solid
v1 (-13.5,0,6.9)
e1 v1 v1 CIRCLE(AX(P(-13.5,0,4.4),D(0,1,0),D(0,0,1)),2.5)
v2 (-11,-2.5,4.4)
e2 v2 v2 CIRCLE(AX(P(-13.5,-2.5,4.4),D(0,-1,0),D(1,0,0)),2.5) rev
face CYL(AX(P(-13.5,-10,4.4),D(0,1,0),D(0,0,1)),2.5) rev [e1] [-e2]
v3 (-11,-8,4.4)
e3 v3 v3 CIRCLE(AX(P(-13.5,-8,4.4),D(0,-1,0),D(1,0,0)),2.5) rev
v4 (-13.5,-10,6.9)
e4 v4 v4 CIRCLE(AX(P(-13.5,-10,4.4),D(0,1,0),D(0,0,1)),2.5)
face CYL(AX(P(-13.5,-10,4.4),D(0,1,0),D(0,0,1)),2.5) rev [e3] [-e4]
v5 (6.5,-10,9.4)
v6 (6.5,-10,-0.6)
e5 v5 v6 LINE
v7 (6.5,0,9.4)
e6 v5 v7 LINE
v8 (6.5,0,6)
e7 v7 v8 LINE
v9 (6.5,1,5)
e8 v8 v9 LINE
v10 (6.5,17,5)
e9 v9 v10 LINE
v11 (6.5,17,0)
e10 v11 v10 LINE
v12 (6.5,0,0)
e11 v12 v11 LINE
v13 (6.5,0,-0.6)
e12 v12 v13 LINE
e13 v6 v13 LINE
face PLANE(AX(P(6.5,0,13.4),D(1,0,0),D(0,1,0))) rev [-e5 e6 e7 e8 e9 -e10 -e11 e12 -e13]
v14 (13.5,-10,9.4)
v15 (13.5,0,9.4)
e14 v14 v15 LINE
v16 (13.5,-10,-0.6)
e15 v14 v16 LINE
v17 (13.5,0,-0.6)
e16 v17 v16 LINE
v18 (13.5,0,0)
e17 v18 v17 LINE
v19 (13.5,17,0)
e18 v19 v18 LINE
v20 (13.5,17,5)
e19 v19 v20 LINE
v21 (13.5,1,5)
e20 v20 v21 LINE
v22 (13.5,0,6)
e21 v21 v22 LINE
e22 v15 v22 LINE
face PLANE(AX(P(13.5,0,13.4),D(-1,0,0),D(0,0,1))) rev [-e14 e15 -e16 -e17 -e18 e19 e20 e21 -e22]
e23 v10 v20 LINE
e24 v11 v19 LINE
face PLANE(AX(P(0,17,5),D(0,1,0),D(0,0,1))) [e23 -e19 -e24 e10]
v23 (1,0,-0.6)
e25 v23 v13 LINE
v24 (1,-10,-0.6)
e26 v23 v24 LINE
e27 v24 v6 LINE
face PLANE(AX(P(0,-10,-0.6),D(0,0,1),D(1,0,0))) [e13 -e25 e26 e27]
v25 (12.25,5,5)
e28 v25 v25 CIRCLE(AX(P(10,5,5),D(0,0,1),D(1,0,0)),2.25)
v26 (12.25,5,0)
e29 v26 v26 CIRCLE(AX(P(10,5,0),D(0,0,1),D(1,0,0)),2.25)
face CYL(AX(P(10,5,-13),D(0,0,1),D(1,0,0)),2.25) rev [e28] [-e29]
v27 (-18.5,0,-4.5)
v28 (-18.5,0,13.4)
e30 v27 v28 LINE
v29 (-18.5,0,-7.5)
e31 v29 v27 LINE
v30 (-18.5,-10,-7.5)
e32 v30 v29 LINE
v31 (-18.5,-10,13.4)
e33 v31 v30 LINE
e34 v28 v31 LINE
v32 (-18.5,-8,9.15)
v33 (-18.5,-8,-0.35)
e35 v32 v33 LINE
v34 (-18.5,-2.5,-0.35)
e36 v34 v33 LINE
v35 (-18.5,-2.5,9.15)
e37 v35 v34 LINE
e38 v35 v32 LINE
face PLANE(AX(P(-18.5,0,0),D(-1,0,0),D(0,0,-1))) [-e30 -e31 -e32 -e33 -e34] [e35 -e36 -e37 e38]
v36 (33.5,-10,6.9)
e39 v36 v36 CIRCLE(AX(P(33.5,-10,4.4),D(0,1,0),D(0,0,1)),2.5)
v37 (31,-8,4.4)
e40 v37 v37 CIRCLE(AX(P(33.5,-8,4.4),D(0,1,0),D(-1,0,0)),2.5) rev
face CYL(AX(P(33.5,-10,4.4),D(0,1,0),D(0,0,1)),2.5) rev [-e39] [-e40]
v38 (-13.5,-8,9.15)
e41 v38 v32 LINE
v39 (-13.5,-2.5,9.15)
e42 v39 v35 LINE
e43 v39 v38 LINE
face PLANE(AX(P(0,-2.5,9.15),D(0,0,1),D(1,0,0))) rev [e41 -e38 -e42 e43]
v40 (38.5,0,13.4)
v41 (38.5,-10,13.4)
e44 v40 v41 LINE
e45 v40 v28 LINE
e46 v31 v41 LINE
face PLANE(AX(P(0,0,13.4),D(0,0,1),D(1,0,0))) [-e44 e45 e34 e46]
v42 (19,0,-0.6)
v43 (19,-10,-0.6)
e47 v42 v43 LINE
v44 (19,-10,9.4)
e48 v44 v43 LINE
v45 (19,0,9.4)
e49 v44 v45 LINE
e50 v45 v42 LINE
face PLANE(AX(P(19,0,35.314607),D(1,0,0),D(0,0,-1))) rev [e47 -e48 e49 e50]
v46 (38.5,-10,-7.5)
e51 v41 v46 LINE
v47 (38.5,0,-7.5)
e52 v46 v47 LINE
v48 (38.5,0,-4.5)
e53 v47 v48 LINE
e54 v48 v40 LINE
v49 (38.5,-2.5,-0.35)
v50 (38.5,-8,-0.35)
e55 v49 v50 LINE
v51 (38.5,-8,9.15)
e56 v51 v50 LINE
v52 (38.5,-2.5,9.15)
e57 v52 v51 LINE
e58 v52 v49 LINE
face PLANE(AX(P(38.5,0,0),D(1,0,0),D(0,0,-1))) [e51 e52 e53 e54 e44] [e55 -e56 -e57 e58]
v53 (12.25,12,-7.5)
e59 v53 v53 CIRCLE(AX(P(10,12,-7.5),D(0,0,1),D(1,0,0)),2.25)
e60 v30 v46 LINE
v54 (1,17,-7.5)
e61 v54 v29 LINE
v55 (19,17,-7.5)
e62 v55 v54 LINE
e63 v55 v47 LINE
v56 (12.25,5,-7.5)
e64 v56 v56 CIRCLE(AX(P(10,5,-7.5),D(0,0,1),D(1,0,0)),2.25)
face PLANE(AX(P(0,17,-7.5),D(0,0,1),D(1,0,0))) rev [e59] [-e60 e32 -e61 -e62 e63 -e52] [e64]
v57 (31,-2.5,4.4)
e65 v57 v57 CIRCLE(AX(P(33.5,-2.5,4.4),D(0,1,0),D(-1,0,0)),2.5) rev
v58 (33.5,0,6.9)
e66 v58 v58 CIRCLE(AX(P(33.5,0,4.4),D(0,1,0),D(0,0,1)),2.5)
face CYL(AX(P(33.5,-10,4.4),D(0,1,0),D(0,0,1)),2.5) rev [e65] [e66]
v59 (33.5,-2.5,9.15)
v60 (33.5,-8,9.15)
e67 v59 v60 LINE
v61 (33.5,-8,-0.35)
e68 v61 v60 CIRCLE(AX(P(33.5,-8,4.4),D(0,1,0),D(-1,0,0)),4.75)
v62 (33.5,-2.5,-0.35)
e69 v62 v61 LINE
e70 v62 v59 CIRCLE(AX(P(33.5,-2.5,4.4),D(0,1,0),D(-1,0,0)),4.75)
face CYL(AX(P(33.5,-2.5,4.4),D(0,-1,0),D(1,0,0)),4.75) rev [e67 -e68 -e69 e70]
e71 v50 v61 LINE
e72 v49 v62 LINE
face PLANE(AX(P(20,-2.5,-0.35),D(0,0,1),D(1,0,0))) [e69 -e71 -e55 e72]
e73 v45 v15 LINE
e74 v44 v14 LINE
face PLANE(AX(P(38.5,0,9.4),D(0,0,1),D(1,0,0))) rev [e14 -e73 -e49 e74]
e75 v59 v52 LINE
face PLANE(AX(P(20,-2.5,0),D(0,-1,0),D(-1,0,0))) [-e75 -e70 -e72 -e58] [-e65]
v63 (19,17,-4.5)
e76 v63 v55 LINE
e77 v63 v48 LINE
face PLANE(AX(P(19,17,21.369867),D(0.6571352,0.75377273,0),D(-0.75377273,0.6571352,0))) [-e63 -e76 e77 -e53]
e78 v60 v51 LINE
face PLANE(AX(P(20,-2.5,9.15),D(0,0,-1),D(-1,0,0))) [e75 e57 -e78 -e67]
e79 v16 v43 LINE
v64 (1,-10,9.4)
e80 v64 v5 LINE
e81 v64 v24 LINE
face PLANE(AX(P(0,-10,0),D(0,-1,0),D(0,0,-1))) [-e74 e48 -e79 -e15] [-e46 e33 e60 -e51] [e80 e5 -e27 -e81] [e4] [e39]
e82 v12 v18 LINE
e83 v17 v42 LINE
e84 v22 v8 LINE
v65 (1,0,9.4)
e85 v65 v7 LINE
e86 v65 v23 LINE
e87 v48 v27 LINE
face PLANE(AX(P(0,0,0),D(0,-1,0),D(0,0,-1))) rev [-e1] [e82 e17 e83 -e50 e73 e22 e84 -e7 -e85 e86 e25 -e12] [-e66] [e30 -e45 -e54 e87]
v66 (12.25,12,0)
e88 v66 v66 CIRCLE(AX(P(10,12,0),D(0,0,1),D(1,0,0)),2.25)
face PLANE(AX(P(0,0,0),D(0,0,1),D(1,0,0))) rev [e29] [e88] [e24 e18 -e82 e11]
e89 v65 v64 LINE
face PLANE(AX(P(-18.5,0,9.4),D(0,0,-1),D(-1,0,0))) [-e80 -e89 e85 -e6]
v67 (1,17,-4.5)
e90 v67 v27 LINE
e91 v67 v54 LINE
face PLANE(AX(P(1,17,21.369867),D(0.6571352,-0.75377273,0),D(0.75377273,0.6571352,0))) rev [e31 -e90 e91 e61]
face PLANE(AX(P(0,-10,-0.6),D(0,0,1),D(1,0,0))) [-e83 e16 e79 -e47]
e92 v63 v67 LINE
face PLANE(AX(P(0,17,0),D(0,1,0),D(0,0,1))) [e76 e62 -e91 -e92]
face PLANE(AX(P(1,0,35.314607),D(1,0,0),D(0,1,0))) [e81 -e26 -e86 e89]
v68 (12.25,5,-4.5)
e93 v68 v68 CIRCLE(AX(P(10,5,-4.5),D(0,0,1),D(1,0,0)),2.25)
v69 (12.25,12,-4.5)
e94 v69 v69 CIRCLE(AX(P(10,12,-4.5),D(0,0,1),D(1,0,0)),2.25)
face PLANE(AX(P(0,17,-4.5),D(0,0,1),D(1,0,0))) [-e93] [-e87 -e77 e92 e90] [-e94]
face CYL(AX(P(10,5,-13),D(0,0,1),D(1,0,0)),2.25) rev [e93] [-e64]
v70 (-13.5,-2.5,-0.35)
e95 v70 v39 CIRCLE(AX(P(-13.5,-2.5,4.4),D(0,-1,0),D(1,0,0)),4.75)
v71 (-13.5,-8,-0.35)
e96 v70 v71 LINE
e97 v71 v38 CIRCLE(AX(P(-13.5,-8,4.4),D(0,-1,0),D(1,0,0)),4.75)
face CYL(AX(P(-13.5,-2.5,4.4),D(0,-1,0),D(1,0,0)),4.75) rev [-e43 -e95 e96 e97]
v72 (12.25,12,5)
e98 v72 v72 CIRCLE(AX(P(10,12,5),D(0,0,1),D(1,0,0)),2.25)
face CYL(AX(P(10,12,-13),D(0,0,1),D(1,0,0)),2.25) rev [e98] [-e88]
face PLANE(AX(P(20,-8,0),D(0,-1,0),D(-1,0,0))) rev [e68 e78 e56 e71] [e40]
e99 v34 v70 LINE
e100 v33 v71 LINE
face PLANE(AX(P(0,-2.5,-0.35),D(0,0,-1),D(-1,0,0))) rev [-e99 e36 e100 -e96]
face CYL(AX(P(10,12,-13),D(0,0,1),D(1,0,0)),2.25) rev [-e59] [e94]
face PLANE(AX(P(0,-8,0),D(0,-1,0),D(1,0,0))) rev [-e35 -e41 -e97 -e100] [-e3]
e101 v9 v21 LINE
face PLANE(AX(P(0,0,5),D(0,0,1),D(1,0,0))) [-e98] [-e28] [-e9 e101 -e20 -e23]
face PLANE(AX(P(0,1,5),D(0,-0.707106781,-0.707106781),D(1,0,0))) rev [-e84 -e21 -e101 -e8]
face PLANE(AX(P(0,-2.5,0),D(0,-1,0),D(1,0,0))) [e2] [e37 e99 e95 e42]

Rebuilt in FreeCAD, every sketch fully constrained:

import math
import FreeCAD as App
import Part
import Sketcher

V = App.Vector
Q = App.Units.Quantity


def edges_at(feature, points):
    """Names of the edges that pass closest to the given points."""
    edges = feature.Shape.Edges
    near = lambda p: min(range(len(edges)), key=lambda i: edges[i].distToShape(Part.Vertex(*p))[0])
    return sorted({f"Edge{near(p) + 1}" for p in points})


def add_polygon(sketch, points):
    """Adds a closed chain of lines whose ends are joined by coincident constraints."""
    first, n = sketch.GeometryCount, len(points)
    for a, b in zip(points, points[1:] + points[:1]):
        sketch.addGeometry(Part.LineSegment(App.Vector(*a, 0), App.Vector(*b, 0)), False)
    for i in range(n):
        sketch.addConstraint(Sketcher.Constraint("Coincident", first + i, 2, first + (i + 1) % n, 1))

doc = App.newDocument("Part")
body = doc.addObject("PartDesign::Body", "Body")

# Sketch on XY plane
sketch1 = doc.addObject("Sketcher::SketchObject", "Sketch")
body.addObject(sketch1)
sketch1.AttachmentSupport = (doc.XY_Plane, [""])
sketch1.MapMode = "FlatFace"
add_polygon(sketch1, [(0, 17), (0, 0), (20, 0), (20, 17)])  # lines 0-3
sketch1.addGeometry(Part.Circle(V(10, 5, 0), V(0, 0, 1), 2.1), False)  # 4
sketch1.addGeometry(Part.Circle(V(10, 12, 0), V(0, 0, 1), 2.1), False)  # 5
sketch1.addConstraint([
    Sketcher.Constraint("Vertical", 0),
    Sketcher.Constraint("Horizontal", 1),
    Sketcher.Constraint("Vertical", 2),
    Sketcher.Constraint("Horizontal", 3),
    Sketcher.Constraint("Coincident", 0, 2, -1, 1),
    Sketcher.Constraint("Equal", 4, 5),
    Sketcher.Constraint("Vertical", 4, 3, 5, 3),
    Sketcher.Constraint("Diameter", 4, Q("4.2 mm")),
    Sketcher.Constraint("DistanceX", 1, 1, 1, 2, Q("20 mm")),
    Sketcher.Constraint("DistanceY", 0, 2, 0, 1, Q("17 mm")),
    Sketcher.Constraint("DistanceX", -1, 1, 4, 3, Q("10 mm")),
    Sketcher.Constraint("DistanceY", -1, 1, 4, 3, Q("5 mm")),
    Sketcher.Constraint("DistanceY", -1, 1, 5, 3, Q("12 mm")),
])
pad1 = doc.addObject("PartDesign::Pad", "Pad")
body.addObject(pad1)
pad1.Profile = sketch1
pad1.Length = 5

# Sketch on XY plane
sketch2 = doc.addObject("Sketcher::SketchObject", "Sketch001")
body.addObject(sketch2)
sketch2.AttachmentSupport = (doc.XY_Plane, [""])
sketch2.MapMode = "FlatFace"
sketch2.AttachmentOffset = App.Placement(V(0, 0, 5), App.Rotation())
add_polygon(sketch2, [(13.5, 17), (13.5, 0), (20, 0), (20, 17)])  # lines 0-3
add_polygon(sketch2, [(0, 17), (0, 0), (6.5, 0), (6.5, 17)])  # lines 4-7
sketch2.addConstraint([
    Sketcher.Constraint("Vertical", 0),
    Sketcher.Constraint("Horizontal", 1),
    Sketcher.Constraint("Vertical", 2),
    Sketcher.Constraint("Horizontal", 3),
    Sketcher.Constraint("Vertical", 4),
    Sketcher.Constraint("Horizontal", 5),
    Sketcher.Constraint("Vertical", 6),
    Sketcher.Constraint("Horizontal", 7),
    Sketcher.Constraint("Coincident", 4, 2, -1, 1),
    Sketcher.Constraint("PointOnObject", 0, 2, -1),
    Sketcher.Constraint("Horizontal", 3, 2, 6, 2),
    Sketcher.Constraint("Equal", 3, 5),
    Sketcher.Constraint("DistanceY", 0, 2, 0, 1, Q("17 mm")),
    Sketcher.Constraint("DistanceX", 1, 1, 1, 2, Q("6.5 mm")),
    Sketcher.Constraint("DistanceX", -1, 1, 1, 2, Q("20 mm")),
])
pocket1 = doc.addObject("PartDesign::Pocket", "Pocket")
body.addObject(pocket1)
pocket1.Profile = sketch2
pocket1.Length = 18
body2 = doc.addObject("PartDesign::Body", "Body001")

# Sketch on XZ plane
sketch3 = doc.addObject("Sketcher::SketchObject", "Sketch002")
body2.addObject(sketch3)
sketch3.AttachmentSupport = (doc.getObject("XZ_Plane001"), [""])
sketch3.MapMode = "FlatFace"
add_polygon(sketch3, [(1, -0.6), (1, -5), (19, -5), (19, -0.6)])  # lines 0-3
sketch3.addConstraint([
    Sketcher.Constraint("Vertical", 0),
    Sketcher.Constraint("Horizontal", 1),
    Sketcher.Constraint("Vertical", 2),
    Sketcher.Constraint("Horizontal", 3),
    Sketcher.Constraint("DistanceX", 1, 1, 1, 2, Q("18 mm")),
    Sketcher.Constraint("DistanceY", 0, 2, 0, 1, Q("4.4 mm")),
    Sketcher.Constraint("DistanceX", -1, 1, 0, 2, Q("1 mm")),
    Sketcher.Constraint("DistanceY", 0, 2, -1, 1, Q("5 mm")),
])
pad2 = doc.addObject("PartDesign::Pad", "Pad001")
body2.addObject(pad2)
pad2.Profile = sketch3
pad2.Length = 10
body.AllowCompound = True
doc.recompute()

boolean = doc.addObject("PartDesign::Boolean", "Boolean")
body.addObject(boolean)
boolean.Type = "Fuse"
boolean.addObjects([body2])

# Sketch on XY plane
sketch4 = doc.addObject("Sketcher::SketchObject", "Sketch003")
body.addObject(sketch4)
sketch4.AttachmentSupport = (doc.XY_Plane, [""])
sketch4.MapMode = "FlatFace"
sketch4.AttachmentOffset = App.Placement(V(0, 0, 5), App.Rotation())
add_polygon(sketch4, [(6.5, 0), (6.5, -10), (13.5, -10), (13.5, 0)])  # lines 0-3
sketch4.addConstraint([
    Sketcher.Constraint("Vertical", 0),
    Sketcher.Constraint("Horizontal", 1),
    Sketcher.Constraint("Vertical", 2),
    Sketcher.Constraint("Horizontal", 3),
    Sketcher.Constraint("PointOnObject", 2, 2, -1),
    Sketcher.Constraint("DistanceX", 1, 1, 1, 2, Q("7 mm")),
    Sketcher.Constraint("DistanceY", 0, 2, 0, 1, Q("10 mm")),
    Sketcher.Constraint("DistanceX", -1, 1, 0, 2, Q("6.5 mm")),
])
pad3 = doc.addObject("PartDesign::Pad", "Pad002")
body.addObject(pad3)
pad3.Profile = sketch4
pad3.Type = "TwoLengths"
pad3.Length = 8.4
pad3.Length2 = 10

# Sketch on XZ plane
sketch5 = doc.addObject("Sketcher::SketchObject", "Sketch004")
body.addObject(sketch5)
sketch5.AttachmentSupport = (doc.XZ_Plane, [""])
sketch5.MapMode = "FlatFace"
add_polygon(sketch5, [(1, -7.5), (1, -4.5), (19, -4.5), (19, -7.5)])  # lines 0-3
sketch5.addConstraint([
    Sketcher.Constraint("Vertical", 0),
    Sketcher.Constraint("Horizontal", 1),
    Sketcher.Constraint("Vertical", 2),
    Sketcher.Constraint("Horizontal", 3),
    Sketcher.Constraint("DistanceX", 1, 1, 1, 2, Q("18 mm")),
    Sketcher.Constraint("DistanceY", 0, 1, 0, 2, Q("3 mm")),
    Sketcher.Constraint("DistanceX", -1, 1, 0, 2, Q("1 mm")),
    Sketcher.Constraint("DistanceY", 0, 2, -1, 1, Q("4.5 mm")),
])
pad4 = doc.addObject("PartDesign::Pad", "Pad003")
body.addObject(pad4)
pad4.Profile = sketch5
pad4.Length = 17
pad4.Reversed = True

# Sketch on XZ plane
sketch6 = doc.addObject("Sketcher::SketchObject", "Sketch005")
body.addObject(sketch6)
sketch6.AttachmentSupport = (doc.XZ_Plane, [""])
sketch6.MapMode = "FlatFace"
add_polygon(sketch6, [(1, -5), (1, -7.5), (19, -7.5), (19, -5)])  # lines 0-3
sketch6.addConstraint([
    Sketcher.Constraint("Vertical", 0),
    Sketcher.Constraint("Horizontal", 1),
    Sketcher.Constraint("Vertical", 2),
    Sketcher.Constraint("Horizontal", 3),
    Sketcher.Constraint("DistanceX", 1, 1, 1, 2, Q("18 mm")),
    Sketcher.Constraint("DistanceY", 0, 2, 0, 1, Q("2.5 mm")),
    Sketcher.Constraint("DistanceX", -1, 1, 0, 2, Q("1 mm")),
    Sketcher.Constraint("DistanceY", 2, 2, -1, 1, Q("5 mm")),
])
pad5 = doc.addObject("PartDesign::Pad", "Pad004")
body.addObject(pad5)
pad5.Profile = sketch6
pad5.Length = 10

# Sketch on XY plane
sketch7 = doc.addObject("Sketcher::SketchObject", "Sketch006")
body.addObject(sketch7)
sketch7.AttachmentSupport = (doc.XY_Plane, [""])
sketch7.MapMode = "FlatFace"
sketch7.AttachmentOffset = App.Placement(V(0, 0, 5), App.Rotation())
sketch7.addGeometry([
    Part.Circle(V(10, 5, 0), V(0, 0, 1), 2.25),
    Part.Circle(V(10, 12, 0), V(0, 0, 1), 2.25),
], False)
sketch7.addConstraint([
    Sketcher.Constraint("Equal", 0, 1),
    Sketcher.Constraint("Vertical", 0, 3, 1, 3),
    Sketcher.Constraint("Diameter", 0, Q("4.5 mm")),
    Sketcher.Constraint("DistanceX", -1, 1, 0, 3, Q("10 mm")),
    Sketcher.Constraint("DistanceY", -1, 1, 0, 3, Q("5 mm")),
    Sketcher.Constraint("DistanceY", -1, 1, 1, 3, Q("12 mm")),
])
pocket2 = doc.addObject("PartDesign::Pocket", "Pocket001")
body.addObject(pocket2)
pocket2.Profile = sketch7
pocket2.Length = 18

# Sketch on YZ plane
sketch8 = doc.addObject("Sketcher::SketchObject", "Sketch007")
body.addObject(sketch8)
sketch8.AttachmentSupport = (doc.YZ_Plane, [""])
sketch8.MapMode = "FlatFace"
sketch8.AttachmentOffset = App.Placement(V(0, 0, 13.5), App.Rotation())
add_polygon(sketch8, [(0, 13.4), (-10, 13.4), (-10, 9.4), (0, 9.4)])  # lines 0-3
add_polygon(sketch8, [(0, -0.6), (-10, -0.6), (-10, -7.5), (0, -7.5)])  # lines 4-7
sketch8.addConstraint([
    Sketcher.Constraint("Horizontal", 0),
    Sketcher.Constraint("Vertical", 1),
    Sketcher.Constraint("Horizontal", 2),
    Sketcher.Constraint("Vertical", 3),
    Sketcher.Constraint("Horizontal", 4),
    Sketcher.Constraint("Vertical", 5),
    Sketcher.Constraint("Horizontal", 6),
    Sketcher.Constraint("Vertical", 7),
    Sketcher.Constraint("PointOnObject", 2, 2, -2),
    Sketcher.Constraint("PointOnObject", 6, 2, -2),
    Sketcher.Constraint("Vertical", 1, 2, 4, 2),
    Sketcher.Constraint("DistanceX", 0, 2, 0, 1, Q("10 mm")),
    Sketcher.Constraint("DistanceY", 1, 2, 1, 1, Q("4 mm")),
    Sketcher.Constraint("DistanceY", 5, 2, 5, 1, Q("6.9 mm")),
    Sketcher.Constraint("DistanceY", 4, 2, 1, 2, Q("10 mm")),
    Sketcher.Constraint("DistanceY", -1, 1, 0, 2, Q("13.4 mm")),
])
pad6 = doc.addObject("PartDesign::Pad", "Pad005")
body.addObject(pad6)
pad6.Profile = sketch8
pad6.Length = 25

# Sketch on XY plane
sketch9 = doc.addObject("Sketcher::SketchObject", "Sketch008")
body.addObject(sketch9)
sketch9.AttachmentSupport = (doc.XY_Plane, [""])
sketch9.MapMode = "FlatFace"
sketch9.AttachmentOffset = App.Placement(V(0, 0, -0.6), App.Rotation())
add_polygon(sketch9, [(19, 0), (19, -10), (38.5, -10), (38.5, 0)])  # lines 0-3
sketch9.addConstraint([
    Sketcher.Constraint("Vertical", 0),
    Sketcher.Constraint("Horizontal", 1),
    Sketcher.Constraint("Vertical", 2),
    Sketcher.Constraint("Horizontal", 3),
    Sketcher.Constraint("PointOnObject", 2, 2, -1),
    Sketcher.Constraint("DistanceY", 0, 2, 0, 1, Q("10 mm")),
    Sketcher.Constraint("DistanceX", 1, 1, 1, 2, Q("19.5 mm")),
    Sketcher.Constraint("DistanceX", -1, 1, 0, 2, Q("19 mm")),
])
pad7 = doc.addObject("PartDesign::Pad", "Pad006")
body.addObject(pad7)
pad7.Profile = sketch9
pad7.Length = 14

# Sketch on XY plane
sketch10 = doc.addObject("Sketcher::SketchObject", "Sketch009")
body.addObject(sketch10)
sketch10.AttachmentSupport = (doc.XY_Plane, [""])
sketch10.MapMode = "FlatFace"
sketch10.AttachmentOffset = App.Placement(V(0, 0, -7.5), App.Rotation())
add_polygon(sketch10, [(38.5, 0), (19, 0), (19, 17)])  # lines 0-2
sketch10.addConstraint([
    Sketcher.Constraint("Horizontal", 0),
    Sketcher.Constraint("Vertical", 1),
    Sketcher.Constraint("PointOnObject", 0, 2, -1),
    Sketcher.Constraint("DistanceY", 1, 1, 1, 2, Q("17 mm")),
    Sketcher.Constraint("DistanceX", 0, 2, 0, 1, Q("19.5 mm")),
    Sketcher.Constraint("DistanceX", -1, 1, 0, 2, Q("19 mm")),
])
pad8 = doc.addObject("PartDesign::Pad", "Pad007")
body.addObject(pad8)
pad8.Profile = sketch10
pad8.Length = 3
doc.recompute()

datumplane = doc.addObject("PartDesign::Plane", "DatumPlane")
body.addObject(datumplane)
datumplane.AttachmentSupport = (doc.YZ_Plane, [""])
datumplane.MapMode = "FlatFace"
datumplane.AttachmentOffset = App.Placement(V(0, 0, 10), App.Rotation())
mirrored = doc.addObject("PartDesign::Mirrored", "Mirrored")
body.addObject(mirrored)
mirrored.Originals = [pad6, pad7, pad8]
mirrored.MirrorPlane = (datumplane, [""])
body.Tip = mirrored
doc.recompute()

chamfer = doc.addObject("PartDesign::Chamfer", "Chamfer")
body.addObject(chamfer)
chamfer.Base = (mirrored, edges_at(mirrored, [(10, 0, 5)]))
chamfer.Size = 1

# Sketch on XZ plane
sketch11 = doc.addObject("Sketcher::SketchObject", "Sketch010")
body.addObject(sketch11)
sketch11.AttachmentSupport = (doc.XZ_Plane, [""])
sketch11.MapMode = "FlatFace"
sketch11.addGeometry([
    Part.Circle(V(-13.5, 4.4, 0), V(0, 0, 1), 2.5),
    Part.Circle(V(33.5, 4.4, 0), V(0, 0, 1), 2.5),
], False)
sketch11.addConstraint([
    Sketcher.Constraint("Equal", 0, 1),
    Sketcher.Constraint("Horizontal", 0, 3, 1, 3),
    Sketcher.Constraint("Diameter", 0, Q("5 mm")),
    Sketcher.Constraint("DistanceX", 0, 3, 1, 3, Q("47 mm")),
    Sketcher.Constraint("DistanceX", 0, 3, -1, 1, Q("13.5 mm")),
    Sketcher.Constraint("DistanceY", -1, 1, 0, 3, Q("4.4 mm")),
])
pocket3 = doc.addObject("PartDesign::Pocket", "Pocket002")
body.addObject(pocket3)
pocket3.Profile = sketch11
pocket3.Length = 10
pocket3.Reversed = True

# Sketch on XZ plane
sketch12 = doc.addObject("Sketcher::SketchObject", "Sketch011")
body.addObject(sketch12)
sketch12.AttachmentSupport = (doc.XZ_Plane, [""])
sketch12.MapMode = "FlatFace"
sketch12.AttachmentOffset = App.Placement(V(0, 0, 2.5), App.Rotation())
sketch12.addGeometry([
    Part.ArcOfCircle(Part.Circle(V(-13.5, 4.4, 0), V(0, 0, 1), 4.75), math.radians(-90), math.radians(90)),  # 0
    Part.LineSegment(V(-13.5, 9.15, 0), V(-18.5, 9.15, 0)),  # 1
    Part.LineSegment(V(-18.5, 9.15, 0), V(-18.5, -0.35, 0)),  # 2
    Part.LineSegment(V(-18.5, -0.35, 0), V(-13.5, -0.35, 0)),  # 3
    Part.Circle(V(-13.5, 4.4, 0), V(0, 0, 1), 2.5),  # 4
], False)
sketch12.addConstraint([
    Sketcher.Constraint("Tangent", 0, 2, 1, 1),
    Sketcher.Constraint("Coincident", 1, 2, 2, 1),
    Sketcher.Constraint("Coincident", 2, 2, 3, 1),
    Sketcher.Constraint("Tangent", 3, 2, 0, 1),
    Sketcher.Constraint("Horizontal", 1),
    Sketcher.Constraint("Vertical", 2),
    Sketcher.Constraint("Horizontal", 3),
    Sketcher.Constraint("Coincident", 4, 3, 0, 3),
    Sketcher.Constraint("Diameter", 4, Q("5 mm")),
    Sketcher.Constraint("DistanceX", 1, 2, 1, 1, Q("5 mm")),
    Sketcher.Constraint("Radius", 0, Q("4.75 mm")),
    Sketcher.Constraint("DistanceX", 0, 3, -1, 1, Q("13.5 mm")),
    Sketcher.Constraint("DistanceY", -1, 1, 0, 3, Q("4.4 mm")),
])
pocket4 = doc.addObject("PartDesign::Pocket", "Pocket003")
body.addObject(pocket4)
pocket4.Profile = sketch12
pocket4.Length = 5.5
pocket4.Reversed = True
doc.recompute()

datumplane2 = doc.addObject("PartDesign::Plane", "DatumPlane001")
body.addObject(datumplane2)
datumplane2.AttachmentSupport = (doc.YZ_Plane, [""])
datumplane2.MapMode = "FlatFace"
datumplane2.AttachmentOffset = App.Placement(V(0, 0, 10), App.Rotation())
mirrored2 = doc.addObject("PartDesign::Mirrored", "Mirrored001")
body.addObject(mirrored2)
mirrored2.Originals = [pocket4]
mirrored2.MirrorPlane = (datumplane2, [""])
body.Tip = mirrored2

doc.recompute()
